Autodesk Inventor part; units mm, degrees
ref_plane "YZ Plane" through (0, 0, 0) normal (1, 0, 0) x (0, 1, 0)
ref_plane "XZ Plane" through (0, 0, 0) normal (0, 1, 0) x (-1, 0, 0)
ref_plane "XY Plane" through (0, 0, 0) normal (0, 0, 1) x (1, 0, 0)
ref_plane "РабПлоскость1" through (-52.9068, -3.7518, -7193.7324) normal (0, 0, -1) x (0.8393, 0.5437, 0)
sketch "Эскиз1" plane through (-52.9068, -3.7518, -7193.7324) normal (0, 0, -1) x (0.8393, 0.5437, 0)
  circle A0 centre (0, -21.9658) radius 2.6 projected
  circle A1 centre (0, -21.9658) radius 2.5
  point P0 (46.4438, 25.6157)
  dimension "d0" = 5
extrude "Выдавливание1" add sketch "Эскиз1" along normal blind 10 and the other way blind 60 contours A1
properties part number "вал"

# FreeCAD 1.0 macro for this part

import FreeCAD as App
import Part
import Sketcher
Q = App.Units.Quantity

doc = App.newDocument("Part")
params = doc.addObject("Spreadsheet::Sheet", "Params")
for row, (alias, value) in enumerate([
    ("sketch1_diameter", "5 mm"),
    ("pad1_length", "10 mm"),
    ("pad1_length2", "60 mm"),
], start=1):
    params.set(f"A{row}", alias)
    params.set(f"B{row}", "=" + value)
    params.setAlias(f"B{row}", alias)

body = doc.addObject("PartDesign::Body", "Body")

sketch1 = doc.addObject("Sketcher::SketchObject", "Sketch")
body.addObject(sketch1)
sketch1.AttachmentSupport = (doc.XY_Plane, [""])
sketch1.MapMode = "FlatFace"
sketch1.AttachmentOffset = App.Placement(App.Vector(0, 0, -7193.7324), App.Rotation())
sketch1.addGeometry(Part.Circle(App.Vector(-64.8, 14.7, 0), App.Vector(0, 0, 1), 2.5), False)
sketch1.addConstraint([
    Sketcher.Constraint("Diameter", 0, Q("5 mm")),
    Sketcher.Constraint("DistanceX", 0, 3, -1, 1, Q("64.8494 mm")),
    Sketcher.Constraint("DistanceY", -1, 1, 0, 3, Q("14.6838 mm")),
])
sketch1.setExpression("Constraints[0]", "Params.sketch1_diameter")
pad1 = doc.addObject("PartDesign::Pad", "Pad")
body.addObject(pad1)
pad1.Profile = sketch1
pad1.Type = "TwoLengths"
pad1.setExpression("Length", "Params.pad1_length")
pad1.setExpression("Length2", "Params.pad1_length2")
pad1.Reversed = True

doc.recompute()
